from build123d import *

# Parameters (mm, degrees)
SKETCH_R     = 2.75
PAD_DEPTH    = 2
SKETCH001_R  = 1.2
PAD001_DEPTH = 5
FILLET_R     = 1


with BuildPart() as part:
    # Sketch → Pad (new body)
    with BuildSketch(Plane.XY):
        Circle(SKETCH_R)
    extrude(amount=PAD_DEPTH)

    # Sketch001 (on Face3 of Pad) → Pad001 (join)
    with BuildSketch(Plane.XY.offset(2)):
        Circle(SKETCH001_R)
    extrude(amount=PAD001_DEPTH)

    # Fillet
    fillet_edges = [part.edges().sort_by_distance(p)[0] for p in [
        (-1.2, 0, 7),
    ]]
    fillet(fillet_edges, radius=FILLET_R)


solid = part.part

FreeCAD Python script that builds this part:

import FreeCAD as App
import Part
import Sketcher
from FreeCAD import Vector


def edges_at(feature, points):
    """Names of the edges that pass closest to the given points."""
    edges = feature.Shape.Edges
    near = lambda p: min(range(len(edges)), key=lambda i: edges[i].distToShape(Part.Vertex(*p))[0])
    return sorted({f"Edge{near(p) + 1}" for p in points})

doc = App.newDocument("Part")
body = doc.addObject("PartDesign::Body", "Body")

sketch1 = body.newObject("Sketcher::SketchObject", "Sketch")
sketch1.AttachmentSupport = (doc.getObject("XY_Plane"), [""])
sketch1.MapMode = "FlatFace"
sketch1.addGeometry(Part.Circle(Vector(0, 0, 0), Vector(0, 0, 1), 2.8), False)
sketch1.addConstraint(Sketcher.Constraint("Coincident", 0, 3, -1, 1))
sketch1.addConstraint(Sketcher.Constraint("Diameter", 0, 5.5))
pad1 = body.newObject("PartDesign::Pad", "Pad")
pad1.Profile = sketch1
pad1.Length = 2

sketch2 = body.newObject("Sketcher::SketchObject", "Sketch001")
sketch2.AttachmentSupport = (doc.getObject("XY_Plane"), [""])
sketch2.MapMode = "FlatFace"
sketch2.AttachmentOffset = App.Placement(Vector(0, 0, 2), App.Rotation())
sketch2.addGeometry(Part.Circle(Vector(0, 0, 0), Vector(0, 0, 1), 1.2), False)
sketch2.addConstraint(Sketcher.Constraint("Coincident", 0, 3, -1, 1))
sketch2.addConstraint(Sketcher.Constraint("Diameter", 0, 2.4))
pad2 = body.newObject("PartDesign::Pad", "Pad001")
pad2.Profile = sketch2
pad2.Length = 5
doc.recompute()

fillet = body.newObject("PartDesign::Fillet", "Fillet")
fillet.Base = (pad2, edges_at(pad2, [(-1.2, 0, 7)]))
fillet.Radius = 1

doc.recompute()
